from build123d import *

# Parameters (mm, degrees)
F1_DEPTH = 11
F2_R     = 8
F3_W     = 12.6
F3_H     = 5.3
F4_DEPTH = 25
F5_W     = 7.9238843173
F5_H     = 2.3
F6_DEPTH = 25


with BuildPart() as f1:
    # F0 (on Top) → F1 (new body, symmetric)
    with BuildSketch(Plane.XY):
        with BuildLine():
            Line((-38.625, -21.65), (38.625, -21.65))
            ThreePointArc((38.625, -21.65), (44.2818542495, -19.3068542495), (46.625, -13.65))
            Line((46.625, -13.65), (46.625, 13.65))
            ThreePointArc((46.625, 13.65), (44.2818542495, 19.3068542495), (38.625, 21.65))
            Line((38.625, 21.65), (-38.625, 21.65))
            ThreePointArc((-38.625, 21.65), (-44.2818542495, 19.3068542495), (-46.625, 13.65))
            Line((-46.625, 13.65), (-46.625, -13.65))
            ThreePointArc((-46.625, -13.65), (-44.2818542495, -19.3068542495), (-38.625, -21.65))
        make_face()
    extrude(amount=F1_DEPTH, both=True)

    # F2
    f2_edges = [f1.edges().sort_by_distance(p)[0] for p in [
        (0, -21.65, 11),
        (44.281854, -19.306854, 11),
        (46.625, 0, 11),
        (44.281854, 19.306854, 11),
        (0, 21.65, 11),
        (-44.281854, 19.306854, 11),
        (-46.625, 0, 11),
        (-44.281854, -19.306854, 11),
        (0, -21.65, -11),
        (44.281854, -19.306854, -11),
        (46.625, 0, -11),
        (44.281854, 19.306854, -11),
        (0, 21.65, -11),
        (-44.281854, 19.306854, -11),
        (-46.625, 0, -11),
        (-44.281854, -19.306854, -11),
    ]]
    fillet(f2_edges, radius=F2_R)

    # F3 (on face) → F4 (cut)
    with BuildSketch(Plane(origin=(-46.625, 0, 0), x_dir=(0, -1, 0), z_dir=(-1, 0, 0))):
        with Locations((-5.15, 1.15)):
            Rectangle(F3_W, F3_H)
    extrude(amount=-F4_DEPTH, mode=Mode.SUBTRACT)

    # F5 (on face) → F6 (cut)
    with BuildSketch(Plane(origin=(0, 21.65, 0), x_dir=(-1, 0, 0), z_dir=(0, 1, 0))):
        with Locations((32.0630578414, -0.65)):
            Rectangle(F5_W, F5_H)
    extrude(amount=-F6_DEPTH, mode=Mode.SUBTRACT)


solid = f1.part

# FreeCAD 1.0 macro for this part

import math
import FreeCAD as App
import Part
import Sketcher

V = App.Vector


def edges_at(feature, points):
    """Names of the edges that pass closest to the given points."""
    edges = feature.Shape.Edges
    near = lambda p: min(range(len(edges)), key=lambda i: edges[i].distToShape(Part.Vertex(*p))[0])
    return sorted({f"Edge{near(p) + 1}" for p in points})


def add_polygon(sketch, points):
    """Adds a closed chain of lines whose ends are joined by coincident constraints."""
    first, n = sketch.GeometryCount, len(points)
    for a, b in zip(points, points[1:] + points[:1]):
        sketch.addGeometry(Part.LineSegment(App.Vector(*a, 0), App.Vector(*b, 0)), False)
    for i in range(n):
        sketch.addConstraint(Sketcher.Constraint("Coincident", first + i, 2, first + (i + 1) % n, 1))

doc = App.newDocument("Part")
body = doc.addObject("PartDesign::Body", "Body")

# Sketch on XY plane
sketch1 = doc.addObject("Sketcher::SketchObject", "Sketch")
body.addObject(sketch1)
sketch1.AttachmentSupport = (doc.XY_Plane, [""])
sketch1.MapMode = "FlatFace"
sketch1.addGeometry(Part.LineSegment(V(-39, -22, 0), V(39, -22, 0)), False)
sketch1.addGeometry(Part.ArcOfCircle(Part.Circle(V(39, -14, 0), V(0, 0, 1), 8), math.radians(-90), math.radians(0)), False)
sketch1.addGeometry(Part.LineSegment(V(47, -14, 0), V(47, 14, 0)), False)
sketch1.addGeometry(Part.ArcOfCircle(Part.Circle(V(39, 14, 0), V(0, 0, 1), 8), math.radians(0), math.radians(90)), False)
sketch1.addGeometry(Part.LineSegment(V(39, 22, 0), V(-39, 22, 0)), False)
sketch1.addGeometry(Part.ArcOfCircle(Part.Circle(V(-39, 14, 0), V(0, 0, 1), 8), math.radians(90), math.radians(180)), False)
sketch1.addGeometry(Part.LineSegment(V(-47, 14, 0), V(-47, -14, 0)), False)
sketch1.addGeometry(Part.ArcOfCircle(Part.Circle(V(-39, -14, 0), V(0, 0, 1), 8), math.radians(180), math.radians(270)), False)
sketch1.addConstraint(Sketcher.Constraint("Tangent", 0, 2, 1, 1))
sketch1.addConstraint(Sketcher.Constraint("Tangent", 1, 2, 2, 1))
sketch1.addConstraint(Sketcher.Constraint("Tangent", 2, 2, 3, 1))
sketch1.addConstraint(Sketcher.Constraint("Tangent", 3, 2, 4, 1))
sketch1.addConstraint(Sketcher.Constraint("Tangent", 4, 2, 5, 1))
sketch1.addConstraint(Sketcher.Constraint("Tangent", 5, 2, 6, 1))
sketch1.addConstraint(Sketcher.Constraint("Tangent", 6, 2, 7, 1))
sketch1.addConstraint(Sketcher.Constraint("Tangent", 7, 2, 0, 1))
sketch1.addConstraint(Sketcher.Constraint("Horizontal", 0))
sketch1.addConstraint(Sketcher.Constraint("Vertical", 2))
sketch1.addConstraint(Sketcher.Constraint("Horizontal", 4))
sketch1.addConstraint(Sketcher.Constraint("Vertical", 6))
sketch1.addConstraint(Sketcher.Constraint("Equal", 1, 3))
sketch1.addConstraint(Sketcher.Constraint("Equal", 3, 5))
sketch1.addConstraint(Sketcher.Constraint("Equal", 5, 7))
sketch1.addConstraint(Sketcher.Constraint("Symmetric", 1, 3, 5, 3, -1, 1))
sketch1.addConstraint(Sketcher.Constraint("Radius", 1, 8.0))
sketch1.addConstraint(Sketcher.Constraint("DistanceY", 2, 1, 2, 2, 27.3))
sketch1.addConstraint(Sketcher.Constraint("DistanceX", 0, 1, 0, 2, 77.25))
pad1 = doc.addObject("PartDesign::Pad", "Pad")
body.addObject(pad1)
pad1.Profile = sketch1
pad1.Length = 22
pad1.Midplane = True
doc.recompute()

fillet = doc.addObject("PartDesign::Fillet", "Fillet")
body.addObject(fillet)
fillet.Base = (pad1, edges_at(pad1, [
    (0, -21.65, 11),
    (44.282, -19.307, 11),
    (46.625, 0, 11),
    (44.282, 19.307, 11),
    (0, 21.65, 11),
    (-44.282, 19.307, 11),
    (-46.625, 0, 11),
    (-44.282, -19.307, 11),
    (0, -21.65, -11),
    (44.282, -19.307, -11),
    (46.625, 0, -11),
    (44.282, 19.307, -11),
    (0, 21.65, -11),
    (-44.282, 19.307, -11),
    (-46.625, 0, -11),
    (-44.282, -19.307, -11),
]))
fillet.Radius = 8

# Sketch on YZ plane
sketch2 = doc.addObject("Sketcher::SketchObject", "Sketch001")
body.addObject(sketch2)
sketch2.AttachmentSupport = (doc.YZ_Plane, [""])
sketch2.MapMode = "FlatFace"
sketch2.AttachmentOffset = App.Placement(V(0, 0, -46.625), App.Rotation())
add_polygon(sketch2, [(11, 4), (11, -2), (-1, -2), (-1, 4)])  # lines 0-3
sketch2.addConstraint(Sketcher.Constraint("Vertical", 0))
sketch2.addConstraint(Sketcher.Constraint("Horizontal", 1))
sketch2.addConstraint(Sketcher.Constraint("Vertical", 2))
sketch2.addConstraint(Sketcher.Constraint("Horizontal", 3))
sketch2.addConstraint(Sketcher.Constraint("DistanceX", 1, 2, 1, 1, 12.6))
sketch2.addConstraint(Sketcher.Constraint("DistanceY", 0, 2, 0, 1, 5.3))
sketch2.addConstraint(Sketcher.Constraint("DistanceY", 0, 2, -1, 1, 1.5))
sketch2.addConstraint(Sketcher.Constraint("DistanceX", -1, 1, 0, 2, 11.45))
pocket1 = doc.addObject("PartDesign::Pocket", "Pocket")
body.addObject(pocket1)
pocket1.Profile = sketch2
pocket1.Length = 25
pocket1.Reversed = True

# Sketch on XZ plane
sketch3 = doc.addObject("Sketcher::SketchObject", "Sketch002")
body.addObject(sketch3)
sketch3.AttachmentSupport = (doc.XZ_Plane, [""])
sketch3.MapMode = "FlatFace"
sketch3.AttachmentOffset = App.Placement(V(0, 0, -21.65), App.Rotation())
add_polygon(sketch3, [(-28.1, 0.5), (-28.1, -1.8), (-36, -1.8), (-36, 0.5)])  # lines 0-3
sketch3.addConstraint(Sketcher.Constraint("Vertical", 0))
sketch3.addConstraint(Sketcher.Constraint("Horizontal", 1))
sketch3.addConstraint(Sketcher.Constraint("Vertical", 2))
sketch3.addConstraint(Sketcher.Constraint("Horizontal", 3))
sketch3.addConstraint(Sketcher.Constraint("DistanceY", 0, 2, 0, 1, 2.3))
sketch3.addConstraint(Sketcher.Constraint("DistanceY", 0, 2, -1, 1, 1.8))
sketch3.addConstraint(Sketcher.Constraint("DistanceX", 1, 2, -1, 1, 36.025))
sketch3.addConstraint(Sketcher.Constraint("DistanceX", 1, 2, 1, 1, 7.923884))
pocket2 = doc.addObject("PartDesign::Pocket", "Pocket001")
body.addObject(pocket2)
pocket2.Profile = sketch3
pocket2.Length = 25
pocket2.Reversed = True

doc.recompute()
